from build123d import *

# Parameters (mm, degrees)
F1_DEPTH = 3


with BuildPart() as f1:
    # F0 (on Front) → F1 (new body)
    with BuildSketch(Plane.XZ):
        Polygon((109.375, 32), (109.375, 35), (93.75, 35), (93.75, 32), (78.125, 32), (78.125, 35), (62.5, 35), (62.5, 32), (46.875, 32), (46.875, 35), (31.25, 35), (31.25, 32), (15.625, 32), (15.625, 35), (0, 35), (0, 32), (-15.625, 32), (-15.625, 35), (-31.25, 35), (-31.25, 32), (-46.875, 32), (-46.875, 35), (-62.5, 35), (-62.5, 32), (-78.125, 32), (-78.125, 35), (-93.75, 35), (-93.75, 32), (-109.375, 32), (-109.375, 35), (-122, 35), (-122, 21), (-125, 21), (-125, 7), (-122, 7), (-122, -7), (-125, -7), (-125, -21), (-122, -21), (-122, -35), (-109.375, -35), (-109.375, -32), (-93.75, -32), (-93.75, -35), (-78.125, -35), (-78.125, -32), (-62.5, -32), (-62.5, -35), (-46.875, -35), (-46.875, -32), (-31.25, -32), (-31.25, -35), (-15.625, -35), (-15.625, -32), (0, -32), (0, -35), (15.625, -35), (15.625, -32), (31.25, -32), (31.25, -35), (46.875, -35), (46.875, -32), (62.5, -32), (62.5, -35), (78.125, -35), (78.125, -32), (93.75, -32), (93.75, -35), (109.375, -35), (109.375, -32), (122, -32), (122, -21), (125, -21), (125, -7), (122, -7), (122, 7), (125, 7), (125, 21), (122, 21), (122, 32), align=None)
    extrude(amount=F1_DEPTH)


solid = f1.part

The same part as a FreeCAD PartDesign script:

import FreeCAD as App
import Part
import Sketcher

V = App.Vector


def add_polygon(sketch, points):
    """Adds a closed chain of lines whose ends are joined by coincident constraints."""
    first, n = sketch.GeometryCount, len(points)
    for a, b in zip(points, points[1:] + points[:1]):
        sketch.addGeometry(Part.LineSegment(App.Vector(*a, 0), App.Vector(*b, 0)), False)
    for i in range(n):
        sketch.addConstraint(Sketcher.Constraint("Coincident", first + i, 2, first + (i + 1) % n, 1))

doc = App.newDocument("Part")
body = doc.addObject("PartDesign::Body", "Body")

# Sketch on XZ plane
sketch1 = body.newObject("Sketcher::SketchObject", "Sketch")
sketch1.AttachmentSupport = (doc.getObject("XZ_Plane"), [""])
sketch1.MapMode = "FlatFace"
add_polygon(sketch1, [(109.4, 32), (109.4, 35), (93.8, 35), (93.8, 32), (78.1, 32), (78.1, 35), (62.5, 35), (62.5, 32), (46.9, 32), (46.9, 35), (31.2, 35), (31.2, 32), (15.6, 32), (15.6, 35), (0, 35), (0, 32), (-15.6, 32), (-15.6, 35), (-31.2, 35), (-31.2, 32), (-46.9, 32), (-46.9, 35), (-62.5, 35), (-62.5, 32), (-78.1, 32), (-78.1, 35), (-93.8, 35), (-93.8, 32), (-109.4, 32), (-109.4, 35), (-122, 35), (-122, 21), (-125, 21), (-125, 7), (-122, 7), (-122, -7), (-125, -7), (-125, -21), (-122, -21), (-122, -35), (-109.4, -35), (-109.4, -32), (-93.8, -32), (-93.8, -35), (-78.1, -35), (-78.1, -32), (-62.5, -32), (-62.5, -35), (-46.9, -35), (-46.9, -32), (-31.2, -32), (-31.2, -35), (-15.6, -35), (-15.6, -32), (0, -32), (0, -35), (15.6, -35), (15.6, -32), (31.2, -32), (31.2, -35), (46.9, -35), (46.9, -32), (62.5, -32), (62.5, -35), (78.1, -35), (78.1, -32), (93.8, -32), (93.8, -35), (109.4, -35), (109.4, -32), (122, -32), (122, -21), (125, -21), (125, -7), (122, -7), (122, 7), (125, 7), (125, 21), (122, 21), (122, 32)])  # lines 0-79
sketch1.addConstraint(Sketcher.Constraint("Vertical", 0))
sketch1.addConstraint(Sketcher.Constraint("Horizontal", 1))
sketch1.addConstraint(Sketcher.Constraint("Vertical", 2))
sketch1.addConstraint(Sketcher.Constraint("Horizontal", 3))
sketch1.addConstraint(Sketcher.Constraint("Vertical", 4))
sketch1.addConstraint(Sketcher.Constraint("Horizontal", 5))
sketch1.addConstraint(Sketcher.Constraint("Vertical", 6))
sketch1.addConstraint(Sketcher.Constraint("Horizontal", 7))
sketch1.addConstraint(Sketcher.Constraint("Vertical", 8))
sketch1.addConstraint(Sketcher.Constraint("Horizontal", 9))
sketch1.addConstraint(Sketcher.Constraint("Vertical", 10))
sketch1.addConstraint(Sketcher.Constraint("Horizontal", 11))
sketch1.addConstraint(Sketcher.Constraint("Vertical", 12))
sketch1.addConstraint(Sketcher.Constraint("Horizontal", 13))
sketch1.addConstraint(Sketcher.Constraint("Vertical", 14))
sketch1.addConstraint(Sketcher.Constraint("Horizontal", 15))
sketch1.addConstraint(Sketcher.Constraint("Vertical", 16))
sketch1.addConstraint(Sketcher.Constraint("Horizontal", 17))
sketch1.addConstraint(Sketcher.Constraint("Vertical", 18))
sketch1.addConstraint(Sketcher.Constraint("Horizontal", 19))
sketch1.addConstraint(Sketcher.Constraint("Vertical", 20))
sketch1.addConstraint(Sketcher.Constraint("Horizontal", 21))
sketch1.addConstraint(Sketcher.Constraint("Vertical", 22))
sketch1.addConstraint(Sketcher.Constraint("Horizontal", 23))
sketch1.addConstraint(Sketcher.Constraint("Vertical", 24))
sketch1.addConstraint(Sketcher.Constraint("Horizontal", 25))
sketch1.addConstraint(Sketcher.Constraint("Vertical", 26))
sketch1.addConstraint(Sketcher.Constraint("Horizontal", 27))
sketch1.addConstraint(Sketcher.Constraint("Vertical", 28))
sketch1.addConstraint(Sketcher.Constraint("Horizontal", 29))
sketch1.addConstraint(Sketcher.Constraint("Vertical", 30))
sketch1.addConstraint(Sketcher.Constraint("Horizontal", 31))
sketch1.addConstraint(Sketcher.Constraint("Vertical", 32))
sketch1.addConstraint(Sketcher.Constraint("Horizontal", 33))
sketch1.addConstraint(Sketcher.Constraint("Vertical", 34))
sketch1.addConstraint(Sketcher.Constraint("Horizontal", 35))
sketch1.addConstraint(Sketcher.Constraint("Vertical", 36))
sketch1.addConstraint(Sketcher.Constraint("Horizontal", 37))
sketch1.addConstraint(Sketcher.Constraint("Vertical", 38))
sketch1.addConstraint(Sketcher.Constraint("Horizontal", 39))
sketch1.addConstraint(Sketcher.Constraint("Vertical", 40))
sketch1.addConstraint(Sketcher.Constraint("Horizontal", 41))
sketch1.addConstraint(Sketcher.Constraint("Vertical", 42))
sketch1.addConstraint(Sketcher.Constraint("Horizontal", 43))
sketch1.addConstraint(Sketcher.Constraint("Vertical", 44))
sketch1.addConstraint(Sketcher.Constraint("Horizontal", 45))
sketch1.addConstraint(Sketcher.Constraint("Vertical", 46))
sketch1.addConstraint(Sketcher.Constraint("Horizontal", 47))
sketch1.addConstraint(Sketcher.Constraint("Vertical", 48))
sketch1.addConstraint(Sketcher.Constraint("Horizontal", 49))
sketch1.addConstraint(Sketcher.Constraint("Vertical", 50))
sketch1.addConstraint(Sketcher.Constraint("Horizontal", 51))
sketch1.addConstraint(Sketcher.Constraint("Vertical", 52))
sketch1.addConstraint(Sketcher.Constraint("Horizontal", 53))
sketch1.addConstraint(Sketcher.Constraint("Vertical", 54))
sketch1.addConstraint(Sketcher.Constraint("Horizontal", 55))
sketch1.addConstraint(Sketcher.Constraint("Vertical", 56))
sketch1.addConstraint(Sketcher.Constraint("Horizontal", 57))
sketch1.addConstraint(Sketcher.Constraint("Vertical", 58))
sketch1.addConstraint(Sketcher.Constraint("Horizontal", 59))
sketch1.addConstraint(Sketcher.Constraint("Vertical", 60))
sketch1.addConstraint(Sketcher.Constraint("Horizontal", 61))
sketch1.addConstraint(Sketcher.Constraint("Vertical", 62))
sketch1.addConstraint(Sketcher.Constraint("Horizontal", 63))
sketch1.addConstraint(Sketcher.Constraint("Vertical", 64))
sketch1.addConstraint(Sketcher.Constraint("Horizontal", 65))
sketch1.addConstraint(Sketcher.Constraint("Vertical", 66))
sketch1.addConstraint(Sketcher.Constraint("Horizontal", 67))
sketch1.addConstraint(Sketcher.Constraint("Vertical", 68))
sketch1.addConstraint(Sketcher.Constraint("Horizontal", 69))
sketch1.addConstraint(Sketcher.Constraint("Vertical", 70))
sketch1.addConstraint(Sketcher.Constraint("Horizontal", 71))
sketch1.addConstraint(Sketcher.Constraint("Vertical", 72))
sketch1.addConstraint(Sketcher.Constraint("Horizontal", 73))
sketch1.addConstraint(Sketcher.Constraint("Vertical", 74))
sketch1.addConstraint(Sketcher.Constraint("Horizontal", 75))
sketch1.addConstraint(Sketcher.Constraint("Vertical", 76))
sketch1.addConstraint(Sketcher.Constraint("Horizontal", 77))
sketch1.addConstraint(Sketcher.Constraint("Vertical", 78))
sketch1.addConstraint(Sketcher.Constraint("Horizontal", 79))
sketch1.addConstraint(Sketcher.Constraint("Symmetric", 0, 2, 39, 2, -1, 1))
sketch1.addConstraint(Sketcher.Constraint("Symmetric", 2, 2, 41, 2, -1, 1))
sketch1.addConstraint(Sketcher.Constraint("Symmetric", 4, 2, 43, 2, -1, 1))
sketch1.addConstraint(Sketcher.Constraint("Symmetric", 6, 2, 45, 2, -1, 1))
sketch1.addConstraint(Sketcher.Constraint("Symmetric", 8, 2, 47, 2, -1, 1))
sketch1.addConstraint(Sketcher.Constraint("Symmetric", 10, 2, 49, 2, -1, 1))
sketch1.addConstraint(Sketcher.Constraint("Symmetric", 12, 2, 51, 2, -1, 1))
sketch1.addConstraint(Sketcher.Constraint("Symmetric", 14, 2, 53, 2, -1, 1))
sketch1.addConstraint(Sketcher.Constraint("Symmetric", 16, 2, 55, 2, -1, 1))
sketch1.addConstraint(Sketcher.Constraint("Symmetric", 18, 2, 57, 2, -1, 1))
sketch1.addConstraint(Sketcher.Constraint("Symmetric", 20, 2, 59, 2, -1, 1))
sketch1.addConstraint(Sketcher.Constraint("Symmetric", 22, 2, 61, 2, -1, 1))
sketch1.addConstraint(Sketcher.Constraint("Symmetric", 24, 2, 63, 2, -1, 1))
sketch1.addConstraint(Sketcher.Constraint("Symmetric", 26, 2, 65, 2, -1, 1))
sketch1.addConstraint(Sketcher.Constraint("Symmetric", 28, 2, 67, 2, -1, 1))
sketch1.addConstraint(Sketcher.Constraint("Symmetric", 30, 2, 70, 2, -1, 1))
sketch1.addConstraint(Sketcher.Constraint("Symmetric", 32, 2, 72, 2, -1, 1))
sketch1.addConstraint(Sketcher.Constraint("Symmetric", 34, 2, 74, 2, -1, 1))
sketch1.addConstraint(Sketcher.Constraint("Symmetric", 36, 2, 76, 2, -1, 1))
sketch1.addConstraint(Sketcher.Constraint("Symmetric", 11, 2, 15, 2, -2))
sketch1.addConstraint(Sketcher.Constraint("Symmetric", 9, 2, 17, 2, -2))
sketch1.addConstraint(Sketcher.Constraint("Symmetric", 7, 2, 19, 2, -2))
sketch1.addConstraint(Sketcher.Constraint("Symmetric", 5, 2, 21, 2, -2))
sketch1.addConstraint(Sketcher.Constraint("Symmetric", 3, 2, 23, 2, -2))
sketch1.addConstraint(Sketcher.Constraint("Symmetric", 1, 2, 25, 2, -2))
sketch1.addConstraint(Sketcher.Constraint("Symmetric", 0, 2, 28, 2, -2))
sketch1.addConstraint(Sketcher.Constraint("Symmetric", 37, 2, 70, 2, -2))
sketch1.addConstraint(Sketcher.Constraint("Symmetric", 35, 2, 72, 2, -2))
sketch1.addConstraint(Sketcher.Constraint("Symmetric", 13, 2, 54, 2, -1))
sketch1.addConstraint(Sketcher.Constraint("Symmetric", 69, 2, 78, 2, -1))
sketch1.addConstraint(Sketcher.Constraint("Horizontal", 1, 2, 4, 2))
sketch1.addConstraint(Sketcher.Constraint("Horizontal", 3, 2, 6, 2))
sketch1.addConstraint(Sketcher.Constraint("Horizontal", 5, 2, 8, 2))
sketch1.addConstraint(Sketcher.Constraint("Horizontal", 7, 2, 10, 2))
sketch1.addConstraint(Sketcher.Constraint("Horizontal", 23, 2, 26, 2))
sketch1.addConstraint(Sketcher.Constraint("Horizontal", 65, 2, 68, 2))
sketch1.addConstraint(Sketcher.Constraint("Vertical", 30, 2, 33, 2))
sketch1.addConstraint(Sketcher.Constraint("Equal", 1, 3))
sketch1.addConstraint(Sketcher.Constraint("Equal", 3, 5))
sketch1.addConstraint(Sketcher.Constraint("Equal", 5, 7))
sketch1.addConstraint(Sketcher.Constraint("Equal", 7, 9))
sketch1.addConstraint(Sketcher.Constraint("Equal", 9, 11))
sketch1.addConstraint(Sketcher.Constraint("Equal", 11, 13))
sketch1.addConstraint(Sketcher.Constraint("Equal", 77, 0))
sketch1.addConstraint(Sketcher.Constraint("Equal", 30, 32))
sketch1.addConstraint(Sketcher.Constraint("Equal", 32, 34))
sketch1.addConstraint(Sketcher.Constraint("DistanceX", 31, 2, 31, 1, 3.0))
sketch1.addConstraint(Sketcher.Constraint("DistanceY", 30, 2, 30, 1, 14.0))
sketch1.addConstraint(Sketcher.Constraint("DistanceX", 29, 2, -1, 1, 122.0))
sketch1.addConstraint(Sketcher.Constraint("DistanceX", -1, 1, 5, 2, 62.5))
pad1 = body.newObject("PartDesign::Pad", "Pad")
pad1.Profile = sketch1
pad1.Length = 3

doc.recompute()
